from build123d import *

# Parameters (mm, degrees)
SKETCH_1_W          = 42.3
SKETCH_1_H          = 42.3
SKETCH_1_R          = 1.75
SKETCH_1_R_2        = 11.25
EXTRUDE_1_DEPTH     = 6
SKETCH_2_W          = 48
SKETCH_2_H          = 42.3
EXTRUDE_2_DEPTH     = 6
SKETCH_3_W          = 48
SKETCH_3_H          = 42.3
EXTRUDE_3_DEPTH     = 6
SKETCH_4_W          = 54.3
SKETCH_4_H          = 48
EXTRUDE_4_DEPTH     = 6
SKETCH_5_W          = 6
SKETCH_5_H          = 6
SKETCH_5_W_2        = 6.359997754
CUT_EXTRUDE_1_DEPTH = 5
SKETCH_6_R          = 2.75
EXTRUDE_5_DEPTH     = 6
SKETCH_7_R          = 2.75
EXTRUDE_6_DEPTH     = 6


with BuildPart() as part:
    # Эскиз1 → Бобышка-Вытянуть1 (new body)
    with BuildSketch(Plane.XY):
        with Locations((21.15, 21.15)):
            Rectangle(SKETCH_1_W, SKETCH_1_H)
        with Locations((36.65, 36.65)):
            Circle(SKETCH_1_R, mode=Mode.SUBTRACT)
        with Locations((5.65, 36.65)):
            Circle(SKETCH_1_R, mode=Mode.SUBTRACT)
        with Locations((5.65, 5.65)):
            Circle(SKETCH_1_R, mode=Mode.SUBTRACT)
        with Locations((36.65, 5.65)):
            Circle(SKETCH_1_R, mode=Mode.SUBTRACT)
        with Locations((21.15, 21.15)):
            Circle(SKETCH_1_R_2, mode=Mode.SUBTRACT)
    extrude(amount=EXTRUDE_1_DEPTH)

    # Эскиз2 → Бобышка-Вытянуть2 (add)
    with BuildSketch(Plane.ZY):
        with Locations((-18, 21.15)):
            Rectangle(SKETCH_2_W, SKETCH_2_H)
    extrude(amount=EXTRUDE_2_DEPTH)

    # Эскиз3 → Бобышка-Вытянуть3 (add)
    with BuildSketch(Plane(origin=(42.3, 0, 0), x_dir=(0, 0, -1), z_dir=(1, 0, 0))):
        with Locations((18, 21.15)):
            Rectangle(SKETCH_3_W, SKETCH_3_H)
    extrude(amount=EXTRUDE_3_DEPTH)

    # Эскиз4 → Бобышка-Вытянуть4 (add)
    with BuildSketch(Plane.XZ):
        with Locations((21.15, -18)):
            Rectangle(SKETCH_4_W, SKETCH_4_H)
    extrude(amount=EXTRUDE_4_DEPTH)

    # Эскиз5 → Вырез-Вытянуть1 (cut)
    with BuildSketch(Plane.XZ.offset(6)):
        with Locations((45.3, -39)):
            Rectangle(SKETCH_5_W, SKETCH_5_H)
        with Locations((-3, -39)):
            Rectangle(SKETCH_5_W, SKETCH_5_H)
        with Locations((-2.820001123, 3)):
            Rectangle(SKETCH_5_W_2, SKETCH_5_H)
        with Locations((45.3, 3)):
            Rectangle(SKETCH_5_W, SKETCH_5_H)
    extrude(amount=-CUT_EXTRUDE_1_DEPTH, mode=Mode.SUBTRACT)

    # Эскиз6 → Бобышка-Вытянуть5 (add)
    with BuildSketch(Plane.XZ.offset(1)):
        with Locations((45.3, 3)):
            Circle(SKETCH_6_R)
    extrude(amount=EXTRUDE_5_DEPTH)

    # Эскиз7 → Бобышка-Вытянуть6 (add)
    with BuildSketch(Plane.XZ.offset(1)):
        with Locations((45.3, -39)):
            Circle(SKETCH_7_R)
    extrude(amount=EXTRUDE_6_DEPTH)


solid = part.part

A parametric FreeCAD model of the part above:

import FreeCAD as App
import Part
import Sketcher


def add_polygon(sketch, points):
    """Adds a closed chain of lines whose ends are joined by coincident constraints."""
    first, n = sketch.GeometryCount, len(points)
    for a, b in zip(points, points[1:] + points[:1]):
        sketch.addGeometry(Part.LineSegment(App.Vector(*a, 0), App.Vector(*b, 0)), False)
    for i in range(n):
        sketch.addConstraint(Sketcher.Constraint("Coincident", first + i, 2, first + (i + 1) % n, 1))

doc = App.newDocument("Part")
body = doc.addObject("PartDesign::Body", "Body")

sketch1 = body.newObject("Sketcher::SketchObject", "Sketch")
sketch1.AttachmentSupport = (doc.getObject("XY_Plane"), [""])
sketch1.MapMode = "FlatFace"
add_polygon(sketch1, [(0, 42.3), (0, 0), (42.3, 0), (42.3, 42.3)])
sketch1.addGeometry(Part.Circle(App.Vector(5.7, 5.7, 0), App.Vector(0, 0, 1), 1.8), False)
sketch1.addGeometry(Part.Circle(App.Vector(36.6, 5.7, 0), App.Vector(0, 0, 1), 1.8), False)
sketch1.addGeometry(Part.Circle(App.Vector(5.7, 36.6, 0), App.Vector(0, 0, 1), 1.8), False)
sketch1.addGeometry(Part.Circle(App.Vector(21.1, 21.1, 0), App.Vector(0, 0, 1), 11.2), False)
sketch1.addGeometry(Part.Circle(App.Vector(36.6, 36.6, 0), App.Vector(0, 0, 1), 1.8), False)
sketch1.addConstraint(Sketcher.Constraint("Vertical", 0))
sketch1.addConstraint(Sketcher.Constraint("Horizontal", 1))
sketch1.addConstraint(Sketcher.Constraint("Vertical", 2))
sketch1.addConstraint(Sketcher.Constraint("Horizontal", 3))
sketch1.addConstraint(Sketcher.Constraint("Coincident", 0, 2, -1, 1))
sketch1.addConstraint(Sketcher.Constraint("Equal", 4, 5))
sketch1.addConstraint(Sketcher.Constraint("Equal", 5, 6))
sketch1.addConstraint(Sketcher.Constraint("Equal", 6, 8))
sketch1.addConstraint(Sketcher.Constraint("Horizontal", 4, 3, 5, 3))
sketch1.addConstraint(Sketcher.Constraint("Horizontal", 6, 3, 8, 3))
sketch1.addConstraint(Sketcher.Constraint("Vertical", 4, 3, 6, 3))
sketch1.addConstraint(Sketcher.Constraint("Vertical", 5, 3, 8, 3))
sketch1.addConstraint(Sketcher.Constraint("Equal", 3, 0))
sketch1.addConstraint(Sketcher.Constraint("Diameter", 4, 3.5))
sketch1.addConstraint(Sketcher.Constraint("Diameter", 7, 22.5))
sketch1.addConstraint(Sketcher.Constraint("DistanceX", 1, 1, 1, 2, 42.3))
sketch1.addConstraint(Sketcher.Constraint("DistanceX", 4, 3, 5, 3, 31.0))
sketch1.addConstraint(Sketcher.Constraint("DistanceY", 4, 3, 6, 3, 31.0))
sketch1.addConstraint(Sketcher.Constraint("DistanceX", 4, 3, 7, 3, 15.5))
sketch1.addConstraint(Sketcher.Constraint("DistanceY", 4, 3, 7, 3, 15.5))
sketch1.addConstraint(Sketcher.Constraint("DistanceX", -1, 1, 4, 3, 5.65))
sketch1.addConstraint(Sketcher.Constraint("DistanceY", -1, 1, 4, 3, 5.65))
pad1 = body.newObject("PartDesign::Pad", "Pad")
pad1.Profile = sketch1
pad1.Length = 6

sketch2 = body.newObject("Sketcher::SketchObject", "Sketch001")
sketch2.AttachmentSupport = (doc.getObject("YZ_Plane"), [""])
sketch2.MapMode = "FlatFace"
add_polygon(sketch2, [(42, -42), (0, -42), (0, 6), (42, 6)])
sketch2.addConstraint(Sketcher.Constraint("Horizontal", 0))
sketch2.addConstraint(Sketcher.Constraint("Vertical", 1))
sketch2.addConstraint(Sketcher.Constraint("Horizontal", 2))
sketch2.addConstraint(Sketcher.Constraint("Vertical", 3))
sketch2.addConstraint(Sketcher.Constraint("PointOnObject", 0, 2, -2))
sketch2.addConstraint(Sketcher.Constraint("DistanceY", 1, 1, 1, 2, 48.0))
sketch2.addConstraint(Sketcher.Constraint("DistanceX", 0, 2, 0, 1, 42.3))
sketch2.addConstraint(Sketcher.Constraint("DistanceY", 0, 2, -1, 1, 42.0))
pad2 = body.newObject("PartDesign::Pad", "Pad001")
pad2.Profile = sketch2
pad2.Length = 6
pad2.Reversed = True

sketch3 = body.newObject("Sketcher::SketchObject", "Sketch002")
sketch3.AttachmentSupport = (doc.getObject("YZ_Plane"), [""])
sketch3.MapMode = "FlatFace"
sketch3.AttachmentOffset = App.Placement(App.Vector(0, 0, 42.3), App.Rotation())
add_polygon(sketch3, [(42, 6), (0, 6), (0, -42), (42, -42)])
sketch3.addConstraint(Sketcher.Constraint("Horizontal", 0))
sketch3.addConstraint(Sketcher.Constraint("Vertical", 1))
sketch3.addConstraint(Sketcher.Constraint("Horizontal", 2))
sketch3.addConstraint(Sketcher.Constraint("Vertical", 3))
sketch3.addConstraint(Sketcher.Constraint("PointOnObject", 0, 2, -2))
sketch3.addConstraint(Sketcher.Constraint("DistanceY", 1, 2, 1, 1, 48.0))
sketch3.addConstraint(Sketcher.Constraint("DistanceX", 0, 2, 0, 1, 42.3))
sketch3.addConstraint(Sketcher.Constraint("DistanceY", -1, 1, 0, 2, 6.0))
pad3 = body.newObject("PartDesign::Pad", "Pad002")
pad3.Profile = sketch3
pad3.Length = 6

sketch4 = body.newObject("Sketcher::SketchObject", "Sketch003")
sketch4.AttachmentSupport = (doc.getObject("XZ_Plane"), [""])
sketch4.MapMode = "FlatFace"
add_polygon(sketch4, [(-6, 6), (-6, -42), (48, -42), (48, 6)])
sketch4.addConstraint(Sketcher.Constraint("Vertical", 0))
sketch4.addConstraint(Sketcher.Constraint("Horizontal", 1))
sketch4.addConstraint(Sketcher.Constraint("Vertical", 2))
sketch4.addConstraint(Sketcher.Constraint("Horizontal", 3))
sketch4.addConstraint(Sketcher.Constraint("DistanceY", 0, 2, 0, 1, 48.0))
sketch4.addConstraint(Sketcher.Constraint("DistanceX", 1, 1, 1, 2, 54.3))
sketch4.addConstraint(Sketcher.Constraint("DistanceX", 0, 2, -1, 1, 6.0))
sketch4.addConstraint(Sketcher.Constraint("DistanceY", 0, 2, -1, 1, 42.0))
pad4 = body.newObject("PartDesign::Pad", "Pad003")
pad4.Profile = sketch4
pad4.Length = 6

sketch5 = body.newObject("Sketcher::SketchObject", "Sketch004")
sketch5.AttachmentSupport = (doc.getObject("XZ_Plane"), [""])
sketch5.MapMode = "FlatFace"
sketch5.AttachmentOffset = App.Placement(App.Vector(0, 0, 6), App.Rotation())
add_polygon(sketch5, [(42, -36), (42, -42), (48, -42), (48, -36)])
add_polygon(sketch5, [(-6, -36), (-6, -42), (0, -42), (0, -36)])
add_polygon(sketch5, [(-6, 6), (-6, 0), (0, 0), (0, 6)])
add_polygon(sketch5, [(42, 6), (42, 0), (48, 0), (48, 6)])
sketch5.addConstraint(Sketcher.Constraint("Vertical", 0))
sketch5.addConstraint(Sketcher.Constraint("Horizontal", 1))
sketch5.addConstraint(Sketcher.Constraint("Vertical", 2))
sketch5.addConstraint(Sketcher.Constraint("Horizontal", 3))
sketch5.addConstraint(Sketcher.Constraint("Vertical", 4))
sketch5.addConstraint(Sketcher.Constraint("Horizontal", 5))
sketch5.addConstraint(Sketcher.Constraint("Vertical", 6))
sketch5.addConstraint(Sketcher.Constraint("Horizontal", 7))
sketch5.addConstraint(Sketcher.Constraint("Vertical", 8))
sketch5.addConstraint(Sketcher.Constraint("Horizontal", 9))
sketch5.addConstraint(Sketcher.Constraint("Vertical", 10))
sketch5.addConstraint(Sketcher.Constraint("Horizontal", 11))
sketch5.addConstraint(Sketcher.Constraint("Vertical", 12))
sketch5.addConstraint(Sketcher.Constraint("Horizontal", 13))
sketch5.addConstraint(Sketcher.Constraint("Vertical", 14))
sketch5.addConstraint(Sketcher.Constraint("Horizontal", 15))
sketch5.addConstraint(Sketcher.Constraint("PointOnObject", 5, 2, -2))
sketch5.addConstraint(Sketcher.Constraint("PointOnObject", 8, 2, -1))
sketch5.addConstraint(Sketcher.Constraint("PointOnObject", 12, 2, -1))
sketch5.addConstraint(Sketcher.Constraint("Horizontal", 1, 2, 4, 2))
sketch5.addConstraint(Sketcher.Constraint("Horizontal", 3, 2, 6, 2))
sketch5.addConstraint(Sketcher.Constraint("Horizontal", 11, 2, 14, 2))
sketch5.addConstraint(Sketcher.Constraint("Vertical", 7, 2, 8, 2))
sketch5.addConstraint(Sketcher.Constraint("Vertical", 3, 2, 12, 2))
sketch5.addConstraint(Sketcher.Constraint("Vertical", 2, 2, 13, 2))
sketch5.addConstraint(Sketcher.Constraint("Equal", 3, 5))
sketch5.addConstraint(Sketcher.Constraint("Equal", 15, 0))
sketch5.addConstraint(Sketcher.Constraint("Equal", 6, 8))
sketch5.addConstraint(Sketcher.Constraint("DistanceX", 1, 1, 1, 2, 6.0))
sketch5.addConstraint(Sketcher.Constraint("DistanceY", 0, 2, -1, 1, 42.0))
sketch5.addConstraint(Sketcher.Constraint("DistanceX", -1, 1, 0, 2, 42.3))
sketch5.addConstraint(Sketcher.Constraint("DistanceX", 9, 1, 9, 2, 6.359998))
pocket1 = body.newObject("PartDesign::Pocket", "Pocket")
pocket1.Profile = sketch5
pocket1.Length = 5

sketch6 = body.newObject("Sketcher::SketchObject", "Sketch005")
sketch6.AttachmentSupport = (doc.getObject("XZ_Plane"), [""])
sketch6.MapMode = "FlatFace"
sketch6.AttachmentOffset = App.Placement(App.Vector(0, 0, 1), App.Rotation())
sketch6.addGeometry(Part.Circle(App.Vector(45.3, 3, 0), App.Vector(0, 0, 1), 2.8), False)
sketch6.addConstraint(Sketcher.Constraint("Diameter", 0, 5.5))
sketch6.addConstraint(Sketcher.Constraint("DistanceY", -1, 1, 0, 3, 3.0))
sketch6.addConstraint(Sketcher.Constraint("DistanceX", -1, 1, 0, 3, 45.3))
pad5 = body.newObject("PartDesign::Pad", "Pad004")
pad5.Profile = sketch6
pad5.Length = 6

sketch7 = body.newObject("Sketcher::SketchObject", "Sketch006")
sketch7.AttachmentSupport = (doc.getObject("XZ_Plane"), [""])
sketch7.MapMode = "FlatFace"
sketch7.AttachmentOffset = App.Placement(App.Vector(0, 0, 1), App.Rotation())
sketch7.addGeometry(Part.Circle(App.Vector(45.3, -39, 0), App.Vector(0, 0, 1), 2.8), False)
sketch7.addConstraint(Sketcher.Constraint("Diameter", 0, 5.5))
sketch7.addConstraint(Sketcher.Constraint("DistanceY", 0, 3, -1, 1, 39.0))
sketch7.addConstraint(Sketcher.Constraint("DistanceX", -1, 1, 0, 3, 45.3))
pad6 = body.newObject("PartDesign::Pad", "Pad005")
pad6.Profile = sketch7
pad6.Length = 6

doc.recompute()
